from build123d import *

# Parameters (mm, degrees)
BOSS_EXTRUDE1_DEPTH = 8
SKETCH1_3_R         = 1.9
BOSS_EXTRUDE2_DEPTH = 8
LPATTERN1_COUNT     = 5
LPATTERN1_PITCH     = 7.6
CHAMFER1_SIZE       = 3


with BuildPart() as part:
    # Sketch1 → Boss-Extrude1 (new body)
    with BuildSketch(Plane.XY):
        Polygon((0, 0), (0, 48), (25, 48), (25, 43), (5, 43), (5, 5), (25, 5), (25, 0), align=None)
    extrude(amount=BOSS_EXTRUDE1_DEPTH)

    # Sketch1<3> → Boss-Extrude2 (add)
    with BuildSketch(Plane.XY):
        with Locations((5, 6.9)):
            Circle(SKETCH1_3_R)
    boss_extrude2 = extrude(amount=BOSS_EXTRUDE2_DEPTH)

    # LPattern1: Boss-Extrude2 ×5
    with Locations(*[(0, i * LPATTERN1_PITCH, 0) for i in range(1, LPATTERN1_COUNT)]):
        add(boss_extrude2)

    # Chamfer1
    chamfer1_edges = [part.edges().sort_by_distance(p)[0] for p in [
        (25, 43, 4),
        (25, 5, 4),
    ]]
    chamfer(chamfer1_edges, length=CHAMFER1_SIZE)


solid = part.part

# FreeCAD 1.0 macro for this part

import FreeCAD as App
import Part
import Sketcher
from FreeCAD import Vector
Q = App.Units.Quantity


def edges_at(feature, points):
    """Names of the edges that pass closest to the given points."""
    edges = feature.Shape.Edges
    near = lambda p: min(range(len(edges)), key=lambda i: edges[i].distToShape(Part.Vertex(*p))[0])
    return sorted({f"Edge{near(p) + 1}" for p in points})

doc = App.newDocument("Part")
body = doc.addObject("PartDesign::Body", "Body")

# Sketch on XY plane
sketch1 = body.newObject("Sketcher::SketchObject", "Sketch")
sketch1.AttachmentSupport = (doc.getObject("XY_Plane"), [""])
sketch1.MapMode = "FlatFace"
sketch1.addGeometry(Part.LineSegment(Vector(0, 48, 0), Vector(0, 0, 0)), False)
sketch1.addGeometry(Part.LineSegment(Vector(0, 0, 0), Vector(25, 0, 0)), False)
sketch1.addGeometry(Part.LineSegment(Vector(25, 0, 0), Vector(25, 5, 0)), False)
sketch1.addGeometry(Part.LineSegment(Vector(25, 5, 0), Vector(5, 5, 0)), False)
sketch1.addGeometry(Part.LineSegment(Vector(5, 5, 0), Vector(5, 43, 0)), False)
sketch1.addGeometry(Part.LineSegment(Vector(5, 43, 0), Vector(25, 43, 0)), False)
sketch1.addGeometry(Part.LineSegment(Vector(25, 43, 0), Vector(25, 48, 0)), False)
sketch1.addGeometry(Part.LineSegment(Vector(25, 48, 0), Vector(0, 48, 0)), False)
sketch1.addConstraint(Sketcher.Constraint("Coincident", 0, 2, 1, 1))
sketch1.addConstraint(Sketcher.Constraint("Coincident", 1, 2, 2, 1))
sketch1.addConstraint(Sketcher.Constraint("Coincident", 2, 2, 3, 1))
sketch1.addConstraint(Sketcher.Constraint("Coincident", 3, 2, 4, 1))
sketch1.addConstraint(Sketcher.Constraint("Coincident", 4, 2, 5, 1))
sketch1.addConstraint(Sketcher.Constraint("Coincident", 5, 2, 6, 1))
sketch1.addConstraint(Sketcher.Constraint("Coincident", 6, 2, 7, 1))
sketch1.addConstraint(Sketcher.Constraint("Coincident", 7, 2, 0, 1))
sketch1.addConstraint(Sketcher.Constraint("Vertical", 0))
sketch1.addConstraint(Sketcher.Constraint("Horizontal", 1))
sketch1.addConstraint(Sketcher.Constraint("Vertical", 2))
sketch1.addConstraint(Sketcher.Constraint("Horizontal", 3))
sketch1.addConstraint(Sketcher.Constraint("Vertical", 4))
sketch1.addConstraint(Sketcher.Constraint("Horizontal", 5))
sketch1.addConstraint(Sketcher.Constraint("Vertical", 6))
sketch1.addConstraint(Sketcher.Constraint("Horizontal", 7))
sketch1.addConstraint(Sketcher.Constraint("Coincident", 0, 2, -1, 1))
sketch1.addConstraint(Sketcher.Constraint("Vertical", 2, 2, 5, 2))
sketch1.addConstraint(Sketcher.Constraint("Equal", 2, 6))
sketch1.addConstraint(Sketcher.Constraint("DistanceX", 1, 1, 1, 2, Q("25 mm")))
sketch1.addConstraint(Sketcher.Constraint("DistanceX", 3, 2, 3, 1, Q("20 mm")))
sketch1.addConstraint(Sketcher.Constraint("DistanceY", 0, 2, 0, 1, Q("48 mm")))
sketch1.addConstraint(Sketcher.Constraint("DistanceY", 2, 1, 2, 2, Q("5 mm")))
pad1 = body.newObject("PartDesign::Pad", "Pad")
pad1.Profile = sketch1
pad1.Length = 8

# Sketch on XY plane
sketch2 = body.newObject("Sketcher::SketchObject", "Sketch001")
sketch2.AttachmentSupport = (doc.getObject("XY_Plane"), [""])
sketch2.MapMode = "FlatFace"
sketch2.addGeometry(Part.Circle(Vector(5, 6.9, 0), Vector(0, 0, 1), 1.9), False)
sketch2.addConstraint(Sketcher.Constraint("Diameter", 0, Q("3.8 mm")))
sketch2.addConstraint(Sketcher.Constraint("DistanceX", -1, 1, 0, 3, Q("5 mm")))
sketch2.addConstraint(Sketcher.Constraint("DistanceY", -1, 1, 0, 3, Q("6.9 mm")))
pad2 = body.newObject("PartDesign::Pad", "Pad001")
pad2.Profile = sketch2
pad2.Length = 8
doc.recompute()

linearpattern = body.newObject("PartDesign::LinearPattern", "LinearPattern")
linearpattern.Originals = [pad2]
linearpattern.Direction = (doc.getObject("Y_Axis"), [""])
linearpattern.Mode = "offset"
linearpattern.Offset = 7.6
linearpattern.Occurrences = 5
body.Tip = linearpattern
doc.recompute()

chamfer = body.newObject("PartDesign::Chamfer", "Chamfer")
chamfer.Base = (linearpattern, edges_at(linearpattern, [(25, 43, 4), (25, 5, 4)]))
chamfer.Size = 3

doc.recompute()
